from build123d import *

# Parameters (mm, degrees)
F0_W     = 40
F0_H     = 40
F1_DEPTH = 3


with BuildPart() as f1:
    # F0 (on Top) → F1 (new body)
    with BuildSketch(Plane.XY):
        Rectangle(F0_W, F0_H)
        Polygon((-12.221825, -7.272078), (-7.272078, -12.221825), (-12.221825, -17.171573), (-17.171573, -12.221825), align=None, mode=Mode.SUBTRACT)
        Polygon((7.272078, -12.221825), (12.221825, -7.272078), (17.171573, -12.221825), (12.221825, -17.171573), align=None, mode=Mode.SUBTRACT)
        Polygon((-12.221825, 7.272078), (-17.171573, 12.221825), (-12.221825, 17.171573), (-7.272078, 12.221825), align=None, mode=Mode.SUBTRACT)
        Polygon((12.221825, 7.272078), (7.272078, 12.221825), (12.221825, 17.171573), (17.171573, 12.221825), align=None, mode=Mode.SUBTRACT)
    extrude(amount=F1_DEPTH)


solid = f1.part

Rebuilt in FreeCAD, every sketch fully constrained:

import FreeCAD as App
import Part
import Sketcher

V = App.Vector

doc = App.newDocument("Part")
params = doc.addObject("Spreadsheet::Sheet", "Params")
for row, (alias, value) in enumerate([
    ("sketch1_width", "40 mm"),
    ("sketch1_length", "7 mm"),
    ("pad1_length", "3 mm"),
], start=1):
    params.set(f"A{row}", alias)
    params.set(f"B{row}", "=" + value)
    params.setAlias(f"B{row}", alias)

body = doc.addObject("PartDesign::Body", "Body")

# Sketch on XY plane
sketch1 = doc.addObject("Sketcher::SketchObject", "Sketch")
body.addObject(sketch1)
sketch1.AttachmentSupport = (doc.XY_Plane, [""])
sketch1.MapMode = "FlatFace"
sketch1.addGeometry([
    Part.LineSegment(V(-20, 20, 0), V(-20, -20, 0)),  # 0
    Part.LineSegment(V(-20, -20, 0), V(20, -20, 0)),  # 1
    Part.LineSegment(V(20, -20, 0), V(20, 20, 0)),  # 2
    Part.LineSegment(V(20, 20, 0), V(-20, 20, 0)),  # 3
    Part.LineSegment(V(-17, -12, 0), V(-12, -7, 0)),  # 4
    Part.LineSegment(V(-12, -7, 0), V(-7, -12, 0)),  # 5
    Part.LineSegment(V(-7, -12, 0), V(-12, -17, 0)),  # 6
    Part.LineSegment(V(-12, -17, 0), V(-17, -12, 0)),  # 7
    Part.LineSegment(V(12, -17, 0), V(7, -12, 0)),  # 8
    Part.LineSegment(V(7, -12, 0), V(12, -7, 0)),  # 9
    Part.LineSegment(V(12, -7, 0), V(17, -12, 0)),  # 10
    Part.LineSegment(V(17, -12, 0), V(12, -17, 0)),  # 11
    Part.LineSegment(V(-7, 12, 0), V(-12, 7, 0)),  # 12
    Part.LineSegment(V(-12, 7, 0), V(-17, 12, 0)),  # 13
    Part.LineSegment(V(-17, 12, 0), V(-12, 17, 0)),  # 14
    Part.LineSegment(V(-12, 17, 0), V(-7, 12, 0)),  # 15
    Part.LineSegment(V(17, 12, 0), V(12, 7, 0)),  # 16
    Part.LineSegment(V(12, 7, 0), V(7, 12, 0)),  # 17
    Part.LineSegment(V(7, 12, 0), V(12, 17, 0)),  # 18
    Part.LineSegment(V(12, 17, 0), V(17, 12, 0)),  # 19
], False)
sketch1.addConstraint([
    Sketcher.Constraint("Coincident", 0, 2, 1, 1),
    Sketcher.Constraint("Coincident", 1, 2, 2, 1),
    Sketcher.Constraint("Coincident", 2, 2, 3, 1),
    Sketcher.Constraint("Coincident", 3, 2, 0, 1),
    Sketcher.Constraint("Coincident", 4, 2, 5, 1),
    Sketcher.Constraint("Coincident", 5, 2, 6, 1),
    Sketcher.Constraint("Coincident", 6, 2, 7, 1),
    Sketcher.Constraint("Coincident", 7, 2, 4, 1),
    Sketcher.Constraint("Coincident", 8, 2, 9, 1),
    Sketcher.Constraint("Coincident", 9, 2, 10, 1),
    Sketcher.Constraint("Coincident", 10, 2, 11, 1),
    Sketcher.Constraint("Coincident", 11, 2, 8, 1),
    Sketcher.Constraint("Coincident", 12, 2, 13, 1),
    Sketcher.Constraint("Coincident", 13, 2, 14, 1),
    Sketcher.Constraint("Coincident", 14, 2, 15, 1),
    Sketcher.Constraint("Coincident", 15, 2, 12, 1),
    Sketcher.Constraint("Coincident", 16, 2, 17, 1),
    Sketcher.Constraint("Coincident", 17, 2, 18, 1),
    Sketcher.Constraint("Coincident", 18, 2, 19, 1),
    Sketcher.Constraint("Coincident", 19, 2, 16, 1),
    Sketcher.Constraint("Vertical", 0),
    Sketcher.Constraint("Horizontal", 1),
    Sketcher.Constraint("Vertical", 2),
    Sketcher.Constraint("Horizontal", 3),
    Sketcher.Constraint("Symmetric", 0, 2, 2, 2, -1, 1),
    Sketcher.Constraint("Symmetric", 9, 2, 12, 2, -1, 1),
    Sketcher.Constraint("Symmetric", 10, 2, 13, 2, -1, 1),
    Sketcher.Constraint("Symmetric", 11, 2, 14, 2, -1, 1),
    Sketcher.Constraint("Symmetric", 8, 2, 15, 2, -1, 1),
    Sketcher.Constraint("Symmetric", 4, 2, 16, 2, -1, 1),
    Sketcher.Constraint("Symmetric", 5, 2, 17, 2, -1, 1),
    Sketcher.Constraint("Symmetric", 6, 2, 18, 2, -1, 1),
    Sketcher.Constraint("Symmetric", 7, 2, 19, 2, -1, 1),
    Sketcher.Constraint("Symmetric", 5, 2, 8, 2, -2),
    Sketcher.Constraint("Symmetric", 4, 2, 9, 2, -2),
    Sketcher.Constraint("Symmetric", 7, 2, 10, 2, -2),
    Sketcher.Constraint("Symmetric", 6, 2, 11, 2, -2),
    Sketcher.Constraint("Perpendicular", 4, 5),
    Sketcher.Constraint("Perpendicular", 5, 6),
    Sketcher.Constraint("Perpendicular", 6, 7),
    Sketcher.Constraint("Parallel", 7, 8),
    Sketcher.Constraint("Horizontal", 5, 2, 7, 2),
    Sketcher.Constraint("Equal", 3, 0),
    Sketcher.Constraint("DistanceX", 1, 1, 1, 2, 40.0),
    Sketcher.Constraint("Distance", 4, 7.0),
    Sketcher.Constraint("DistanceY", 4, 2, 3, 2, 27.272078),
    Sketcher.Constraint("DistanceX", 5, 2, 1, 2, 27.272078),
])
sketch1.setExpression("Constraints[43]", "Params.sketch1_width")
sketch1.setExpression("Constraints[44]", "Params.sketch1_length")
pad1 = doc.addObject("PartDesign::Pad", "Pad")
body.addObject(pad1)
pad1.Profile = sketch1
pad1.setExpression("Length", "Params.pad1_length")

doc.recompute()
